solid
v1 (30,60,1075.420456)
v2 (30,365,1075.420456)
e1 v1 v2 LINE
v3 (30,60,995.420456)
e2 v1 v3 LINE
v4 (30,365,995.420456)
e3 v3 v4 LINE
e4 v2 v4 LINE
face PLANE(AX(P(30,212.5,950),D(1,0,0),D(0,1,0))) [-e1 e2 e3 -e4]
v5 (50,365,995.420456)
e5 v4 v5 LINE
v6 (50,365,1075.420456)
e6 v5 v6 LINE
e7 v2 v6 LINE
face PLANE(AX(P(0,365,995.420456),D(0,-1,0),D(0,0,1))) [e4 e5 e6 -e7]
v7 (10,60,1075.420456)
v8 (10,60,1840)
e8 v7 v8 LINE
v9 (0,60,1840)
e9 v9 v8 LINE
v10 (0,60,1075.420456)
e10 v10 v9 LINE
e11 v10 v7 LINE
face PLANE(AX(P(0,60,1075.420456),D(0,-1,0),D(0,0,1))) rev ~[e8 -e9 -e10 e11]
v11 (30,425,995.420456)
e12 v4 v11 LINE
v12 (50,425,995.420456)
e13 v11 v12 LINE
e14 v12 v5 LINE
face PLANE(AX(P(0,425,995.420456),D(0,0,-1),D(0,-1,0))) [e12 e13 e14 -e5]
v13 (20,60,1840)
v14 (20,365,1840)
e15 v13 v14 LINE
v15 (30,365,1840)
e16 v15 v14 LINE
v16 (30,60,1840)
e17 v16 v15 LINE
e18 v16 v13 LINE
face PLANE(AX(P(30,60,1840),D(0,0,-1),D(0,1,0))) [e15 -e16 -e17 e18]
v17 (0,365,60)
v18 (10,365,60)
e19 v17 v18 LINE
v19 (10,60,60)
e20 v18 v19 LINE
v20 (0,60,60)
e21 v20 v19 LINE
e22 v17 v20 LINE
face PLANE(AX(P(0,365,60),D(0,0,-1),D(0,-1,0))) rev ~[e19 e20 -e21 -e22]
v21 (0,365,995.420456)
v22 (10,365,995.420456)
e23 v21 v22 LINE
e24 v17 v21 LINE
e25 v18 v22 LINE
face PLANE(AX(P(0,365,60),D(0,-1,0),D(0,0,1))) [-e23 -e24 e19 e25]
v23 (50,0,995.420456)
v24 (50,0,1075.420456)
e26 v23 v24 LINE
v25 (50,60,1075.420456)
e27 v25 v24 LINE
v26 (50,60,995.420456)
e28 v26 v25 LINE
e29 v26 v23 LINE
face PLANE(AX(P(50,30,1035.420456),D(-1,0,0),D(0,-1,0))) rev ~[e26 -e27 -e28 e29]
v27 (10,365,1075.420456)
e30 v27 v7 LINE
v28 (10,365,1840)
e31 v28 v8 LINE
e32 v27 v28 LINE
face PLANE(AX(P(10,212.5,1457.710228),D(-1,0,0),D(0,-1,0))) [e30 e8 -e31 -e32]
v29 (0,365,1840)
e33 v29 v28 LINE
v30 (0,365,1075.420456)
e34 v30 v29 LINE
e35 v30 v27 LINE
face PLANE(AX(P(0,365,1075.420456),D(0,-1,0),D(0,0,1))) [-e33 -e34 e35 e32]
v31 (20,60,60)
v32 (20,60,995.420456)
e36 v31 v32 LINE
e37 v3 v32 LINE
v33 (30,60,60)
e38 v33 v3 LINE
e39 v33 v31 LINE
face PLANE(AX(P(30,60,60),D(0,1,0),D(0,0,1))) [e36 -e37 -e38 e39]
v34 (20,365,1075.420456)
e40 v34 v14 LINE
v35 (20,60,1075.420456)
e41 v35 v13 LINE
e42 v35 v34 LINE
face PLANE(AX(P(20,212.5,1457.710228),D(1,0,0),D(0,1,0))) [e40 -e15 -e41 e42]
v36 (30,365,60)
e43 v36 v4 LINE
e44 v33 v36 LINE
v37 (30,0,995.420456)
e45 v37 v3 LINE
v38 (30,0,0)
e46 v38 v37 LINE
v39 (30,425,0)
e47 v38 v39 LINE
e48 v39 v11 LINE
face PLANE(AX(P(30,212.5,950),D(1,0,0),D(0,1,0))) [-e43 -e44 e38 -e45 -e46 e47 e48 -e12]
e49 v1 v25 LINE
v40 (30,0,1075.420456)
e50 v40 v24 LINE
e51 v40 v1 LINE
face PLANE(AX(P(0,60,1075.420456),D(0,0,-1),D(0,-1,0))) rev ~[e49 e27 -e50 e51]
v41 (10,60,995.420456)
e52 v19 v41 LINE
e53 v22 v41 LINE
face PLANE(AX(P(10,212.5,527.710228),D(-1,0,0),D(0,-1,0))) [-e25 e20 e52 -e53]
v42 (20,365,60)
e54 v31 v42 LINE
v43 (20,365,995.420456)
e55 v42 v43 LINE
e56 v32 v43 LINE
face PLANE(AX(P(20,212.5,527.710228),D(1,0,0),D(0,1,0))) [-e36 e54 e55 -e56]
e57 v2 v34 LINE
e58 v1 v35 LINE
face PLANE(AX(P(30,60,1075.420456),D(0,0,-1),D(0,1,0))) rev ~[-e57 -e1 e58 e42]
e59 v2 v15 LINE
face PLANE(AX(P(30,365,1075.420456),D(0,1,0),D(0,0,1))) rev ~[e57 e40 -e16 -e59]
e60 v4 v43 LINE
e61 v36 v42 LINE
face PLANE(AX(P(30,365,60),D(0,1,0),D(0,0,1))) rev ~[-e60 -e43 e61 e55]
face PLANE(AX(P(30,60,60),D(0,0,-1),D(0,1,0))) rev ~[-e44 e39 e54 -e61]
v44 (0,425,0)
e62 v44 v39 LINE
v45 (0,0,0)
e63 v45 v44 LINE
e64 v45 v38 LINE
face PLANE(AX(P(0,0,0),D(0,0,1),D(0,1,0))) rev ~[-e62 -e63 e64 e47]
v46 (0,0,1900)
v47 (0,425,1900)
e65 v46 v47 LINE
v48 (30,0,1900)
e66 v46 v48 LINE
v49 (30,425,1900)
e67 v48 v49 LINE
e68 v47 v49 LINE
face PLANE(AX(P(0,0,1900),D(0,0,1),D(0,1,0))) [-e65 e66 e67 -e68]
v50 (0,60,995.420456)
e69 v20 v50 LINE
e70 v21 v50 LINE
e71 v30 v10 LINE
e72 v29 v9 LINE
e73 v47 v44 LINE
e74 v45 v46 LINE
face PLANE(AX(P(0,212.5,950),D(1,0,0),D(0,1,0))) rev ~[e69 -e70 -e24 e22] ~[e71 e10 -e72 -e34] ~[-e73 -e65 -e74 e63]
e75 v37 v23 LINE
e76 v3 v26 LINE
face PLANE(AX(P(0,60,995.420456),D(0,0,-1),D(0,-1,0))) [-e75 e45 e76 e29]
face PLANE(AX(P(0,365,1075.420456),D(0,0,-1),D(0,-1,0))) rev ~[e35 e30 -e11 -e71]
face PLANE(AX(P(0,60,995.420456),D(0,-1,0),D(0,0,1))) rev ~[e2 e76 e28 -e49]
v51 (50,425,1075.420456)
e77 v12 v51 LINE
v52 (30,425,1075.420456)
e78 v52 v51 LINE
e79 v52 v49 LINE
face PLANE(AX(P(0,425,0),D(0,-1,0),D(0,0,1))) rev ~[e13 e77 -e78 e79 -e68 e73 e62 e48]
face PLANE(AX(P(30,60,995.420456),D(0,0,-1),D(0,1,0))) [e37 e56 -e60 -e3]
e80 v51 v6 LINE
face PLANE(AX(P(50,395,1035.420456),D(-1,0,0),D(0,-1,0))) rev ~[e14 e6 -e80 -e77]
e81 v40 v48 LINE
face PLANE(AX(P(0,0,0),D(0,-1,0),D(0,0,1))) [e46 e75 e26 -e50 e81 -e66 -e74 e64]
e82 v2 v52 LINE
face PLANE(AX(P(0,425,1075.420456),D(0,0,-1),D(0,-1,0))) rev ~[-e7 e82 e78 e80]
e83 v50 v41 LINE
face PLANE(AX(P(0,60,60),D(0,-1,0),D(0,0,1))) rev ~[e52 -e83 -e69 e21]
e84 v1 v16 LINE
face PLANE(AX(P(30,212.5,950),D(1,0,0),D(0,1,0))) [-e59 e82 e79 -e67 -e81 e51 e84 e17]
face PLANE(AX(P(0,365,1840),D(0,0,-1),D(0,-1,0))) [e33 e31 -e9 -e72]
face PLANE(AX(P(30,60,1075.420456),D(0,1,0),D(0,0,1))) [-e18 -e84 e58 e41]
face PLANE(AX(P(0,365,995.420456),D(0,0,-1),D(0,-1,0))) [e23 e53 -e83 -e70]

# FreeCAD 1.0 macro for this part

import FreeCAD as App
import Part
import Sketcher
from FreeCAD import Vector

doc = App.newDocument("Part")
body = doc.addObject("PartDesign::Body", "Body")

# Sketch on YZ plane
sketch1 = doc.addObject("Sketcher::SketchObject", "Sketch")
body.addObject(sketch1)
sketch1.AttachmentSupport = (doc.YZ_Plane, [""])
sketch1.MapMode = "FlatFace"
sketch1.addGeometry([
    Part.LineSegment(Vector(0, 1900, 0), Vector(0, 0, 0)),
    Part.LineSegment(Vector(0, 0, 0), Vector(425, 0, 0)),
    Part.LineSegment(Vector(425, 0, 0), Vector(425, 1900, 0)),
    Part.LineSegment(Vector(425, 1900, 0), Vector(0, 1900, 0)),
], False)
sketch1.addConstraint([
    Sketcher.Constraint("Coincident", 0, 2, 1, 1),
    Sketcher.Constraint("Coincident", 1, 2, 2, 1),
    Sketcher.Constraint("Coincident", 2, 2, 3, 1),
    Sketcher.Constraint("Coincident", 3, 2, 0, 1),
    Sketcher.Constraint("Vertical", 0),
    Sketcher.Constraint("Horizontal", 1),
    Sketcher.Constraint("Vertical", 2),
    Sketcher.Constraint("Horizontal", 3),
    Sketcher.Constraint("Coincident", 0, 2, -1, 1),
    Sketcher.Constraint("DistanceX", 1, 1, 1, 2, 425.0),
    Sketcher.Constraint("DistanceY", 0, 2, 0, 1, 1900.0),
])
pad1 = doc.addObject("PartDesign::Pad", "Pad")
body.addObject(pad1)
pad1.Profile = sketch1
pad1.Length = 30

# Sketch on YZ plane
sketch2 = doc.addObject("Sketcher::SketchObject", "Sketch001")
body.addObject(sketch2)
sketch2.AttachmentSupport = (doc.YZ_Plane, [""])
sketch2.MapMode = "FlatFace"
sketch2.AttachmentOffset = App.Placement(Vector(0, 0, 30), App.Rotation())
sketch2.addGeometry([
    Part.LineSegment(Vector(60, 1840, 0), Vector(60, 1075, 0)),  # 0
    Part.LineSegment(Vector(60, 1075, 0), Vector(365, 1075, 0)),  # 1
    Part.LineSegment(Vector(365, 1075, 0), Vector(365, 1840, 0)),  # 2
    Part.LineSegment(Vector(365, 1840, 0), Vector(60, 1840, 0)),  # 3
    Part.LineSegment(Vector(60, 995, 0), Vector(60, 60, 0)),  # 4
    Part.LineSegment(Vector(60, 60, 0), Vector(365, 60, 0)),  # 5
    Part.LineSegment(Vector(365, 60, 0), Vector(365, 995, 0)),  # 6
    Part.LineSegment(Vector(365, 995, 0), Vector(60, 995, 0)),  # 7
], False)
sketch2.addConstraint([
    Sketcher.Constraint("Coincident", 0, 2, 1, 1),
    Sketcher.Constraint("Coincident", 1, 2, 2, 1),
    Sketcher.Constraint("Coincident", 2, 2, 3, 1),
    Sketcher.Constraint("Coincident", 3, 2, 0, 1),
    Sketcher.Constraint("Coincident", 4, 2, 5, 1),
    Sketcher.Constraint("Coincident", 5, 2, 6, 1),
    Sketcher.Constraint("Coincident", 6, 2, 7, 1),
    Sketcher.Constraint("Coincident", 7, 2, 4, 1),
    Sketcher.Constraint("Vertical", 0),
    Sketcher.Constraint("Horizontal", 1),
    Sketcher.Constraint("Vertical", 2),
    Sketcher.Constraint("Horizontal", 3),
    Sketcher.Constraint("Vertical", 4),
    Sketcher.Constraint("Horizontal", 5),
    Sketcher.Constraint("Vertical", 6),
    Sketcher.Constraint("Horizontal", 7),
    Sketcher.Constraint("Vertical", 3, 2, 4, 2),
    Sketcher.Constraint("Vertical", 2, 2, 5, 2),
    Sketcher.Constraint("DistanceX", 1, 1, 1, 2, 305.0),
    Sketcher.Constraint("DistanceX", -1, 1, 0, 2, 60.0),
    Sketcher.Constraint("DistanceY", -1, 1, 2, 2, 1840.0),
    Sketcher.Constraint("DistanceY", -1, 1, 4, 2, 60.0),
    Sketcher.Constraint("DistanceY", 6, 2, 1, 2, 80.0),
    Sketcher.Constraint("DistanceY", 0, 2, 0, 1, 764.579544),
])
pocket1 = doc.addObject("PartDesign::Pocket", "Pocket")
body.addObject(pocket1)
pocket1.Profile = sketch2
pocket1.Length = 10

# Sketch on YZ plane
sketch3 = doc.addObject("Sketcher::SketchObject", "Sketch002")
body.addObject(sketch3)
sketch3.AttachmentSupport = (doc.YZ_Plane, [""])
sketch3.MapMode = "FlatFace"
sketch3.addGeometry([
    Part.LineSegment(Vector(365, 1840, 0), Vector(365, 1075, 0)),  # 0
    Part.LineSegment(Vector(365, 1075, 0), Vector(60, 1075, 0)),  # 1
    Part.LineSegment(Vector(60, 1075, 0), Vector(60, 1840, 0)),  # 2
    Part.LineSegment(Vector(60, 1840, 0), Vector(365, 1840, 0)),  # 3
    Part.LineSegment(Vector(365, 995, 0), Vector(365, 60, 0)),  # 4
    Part.LineSegment(Vector(365, 60, 0), Vector(60, 60, 0)),  # 5
    Part.LineSegment(Vector(60, 60, 0), Vector(60, 995, 0)),  # 6
    Part.LineSegment(Vector(60, 995, 0), Vector(365, 995, 0)),  # 7
], False)
sketch3.addConstraint([
    Sketcher.Constraint("Coincident", 0, 2, 1, 1),
    Sketcher.Constraint("Coincident", 1, 2, 2, 1),
    Sketcher.Constraint("Coincident", 2, 2, 3, 1),
    Sketcher.Constraint("Coincident", 3, 2, 0, 1),
    Sketcher.Constraint("Coincident", 4, 2, 5, 1),
    Sketcher.Constraint("Coincident", 5, 2, 6, 1),
    Sketcher.Constraint("Coincident", 6, 2, 7, 1),
    Sketcher.Constraint("Coincident", 7, 2, 4, 1),
    Sketcher.Constraint("Vertical", 0),
    Sketcher.Constraint("Horizontal", 1),
    Sketcher.Constraint("Vertical", 2),
    Sketcher.Constraint("Horizontal", 3),
    Sketcher.Constraint("Vertical", 4),
    Sketcher.Constraint("Horizontal", 5),
    Sketcher.Constraint("Vertical", 6),
    Sketcher.Constraint("Horizontal", 7),
    Sketcher.Constraint("Vertical", 3, 2, 4, 2),
    Sketcher.Constraint("Vertical", 2, 2, 5, 2),
    Sketcher.Constraint("DistanceX", 1, 2, 1, 1, 305.0),
    Sketcher.Constraint("DistanceX", -1, 1, 0, 2, 365.0),
    Sketcher.Constraint("DistanceY", -1, 1, 2, 2, 1840.0),
    Sketcher.Constraint("DistanceY", -1, 1, 4, 2, 60.0),
    Sketcher.Constraint("DistanceY", 6, 2, 1, 2, 80.0),
    Sketcher.Constraint("DistanceY", 0, 2, 0, 1, 764.579544),
])
pocket2 = doc.addObject("PartDesign::Pocket", "Pocket001")
body.addObject(pocket2)
pocket2.Profile = sketch3
pocket2.Length = 10
pocket2.Reversed = True

# Sketch on YZ plane
sketch4 = doc.addObject("Sketcher::SketchObject", "Sketch003")
body.addObject(sketch4)
sketch4.AttachmentSupport = (doc.YZ_Plane, [""])
sketch4.MapMode = "FlatFace"
sketch4.addGeometry([
    Part.LineSegment(Vector(425, 1075, 0), Vector(425, 995, 0)),  # 0
    Part.LineSegment(Vector(425, 995, 0), Vector(365, 995, 0)),  # 1
    Part.LineSegment(Vector(365, 995, 0), Vector(365, 1075, 0)),  # 2
    Part.LineSegment(Vector(365, 1075, 0), Vector(425, 1075, 0)),  # 3
    Part.LineSegment(Vector(60, 1075, 0), Vector(60, 995, 0)),  # 4
    Part.LineSegment(Vector(60, 995, 0), Vector(0, 995, 0)),  # 5
    Part.LineSegment(Vector(0, 995, 0), Vector(0, 1075, 0)),  # 6
    Part.LineSegment(Vector(0, 1075, 0), Vector(60, 1075, 0)),  # 7
], False)
sketch4.addConstraint([
    Sketcher.Constraint("Coincident", 0, 2, 1, 1),
    Sketcher.Constraint("Coincident", 1, 2, 2, 1),
    Sketcher.Constraint("Coincident", 2, 2, 3, 1),
    Sketcher.Constraint("Coincident", 3, 2, 0, 1),
    Sketcher.Constraint("Coincident", 4, 2, 5, 1),
    Sketcher.Constraint("Coincident", 5, 2, 6, 1),
    Sketcher.Constraint("Coincident", 6, 2, 7, 1),
    Sketcher.Constraint("Coincident", 7, 2, 4, 1),
    Sketcher.Constraint("Vertical", 0),
    Sketcher.Constraint("Horizontal", 1),
    Sketcher.Constraint("Vertical", 2),
    Sketcher.Constraint("Horizontal", 3),
    Sketcher.Constraint("Vertical", 4),
    Sketcher.Constraint("Horizontal", 5),
    Sketcher.Constraint("Vertical", 6),
    Sketcher.Constraint("Horizontal", 7),
    Sketcher.Constraint("PointOnObject", 5, 2, -2),
    Sketcher.Constraint("Horizontal", 1, 2, 4, 2),
    Sketcher.Constraint("Horizontal", 3, 2, 6, 2),
    Sketcher.Constraint("Equal", 3, 5),
    Sketcher.Constraint("DistanceX", 1, 2, 1, 1, 60.0),
    Sketcher.Constraint("DistanceY", 0, 2, 0, 1, 80.0),
    Sketcher.Constraint("DistanceX", -1, 1, 0, 2, 425.0),
    Sketcher.Constraint("DistanceY", -1, 1, 0, 2, 995.420456),
])
pad2 = doc.addObject("PartDesign::Pad", "Pad001")
body.addObject(pad2)
pad2.Profile = sketch4
pad2.Length = 50

doc.recompute()
